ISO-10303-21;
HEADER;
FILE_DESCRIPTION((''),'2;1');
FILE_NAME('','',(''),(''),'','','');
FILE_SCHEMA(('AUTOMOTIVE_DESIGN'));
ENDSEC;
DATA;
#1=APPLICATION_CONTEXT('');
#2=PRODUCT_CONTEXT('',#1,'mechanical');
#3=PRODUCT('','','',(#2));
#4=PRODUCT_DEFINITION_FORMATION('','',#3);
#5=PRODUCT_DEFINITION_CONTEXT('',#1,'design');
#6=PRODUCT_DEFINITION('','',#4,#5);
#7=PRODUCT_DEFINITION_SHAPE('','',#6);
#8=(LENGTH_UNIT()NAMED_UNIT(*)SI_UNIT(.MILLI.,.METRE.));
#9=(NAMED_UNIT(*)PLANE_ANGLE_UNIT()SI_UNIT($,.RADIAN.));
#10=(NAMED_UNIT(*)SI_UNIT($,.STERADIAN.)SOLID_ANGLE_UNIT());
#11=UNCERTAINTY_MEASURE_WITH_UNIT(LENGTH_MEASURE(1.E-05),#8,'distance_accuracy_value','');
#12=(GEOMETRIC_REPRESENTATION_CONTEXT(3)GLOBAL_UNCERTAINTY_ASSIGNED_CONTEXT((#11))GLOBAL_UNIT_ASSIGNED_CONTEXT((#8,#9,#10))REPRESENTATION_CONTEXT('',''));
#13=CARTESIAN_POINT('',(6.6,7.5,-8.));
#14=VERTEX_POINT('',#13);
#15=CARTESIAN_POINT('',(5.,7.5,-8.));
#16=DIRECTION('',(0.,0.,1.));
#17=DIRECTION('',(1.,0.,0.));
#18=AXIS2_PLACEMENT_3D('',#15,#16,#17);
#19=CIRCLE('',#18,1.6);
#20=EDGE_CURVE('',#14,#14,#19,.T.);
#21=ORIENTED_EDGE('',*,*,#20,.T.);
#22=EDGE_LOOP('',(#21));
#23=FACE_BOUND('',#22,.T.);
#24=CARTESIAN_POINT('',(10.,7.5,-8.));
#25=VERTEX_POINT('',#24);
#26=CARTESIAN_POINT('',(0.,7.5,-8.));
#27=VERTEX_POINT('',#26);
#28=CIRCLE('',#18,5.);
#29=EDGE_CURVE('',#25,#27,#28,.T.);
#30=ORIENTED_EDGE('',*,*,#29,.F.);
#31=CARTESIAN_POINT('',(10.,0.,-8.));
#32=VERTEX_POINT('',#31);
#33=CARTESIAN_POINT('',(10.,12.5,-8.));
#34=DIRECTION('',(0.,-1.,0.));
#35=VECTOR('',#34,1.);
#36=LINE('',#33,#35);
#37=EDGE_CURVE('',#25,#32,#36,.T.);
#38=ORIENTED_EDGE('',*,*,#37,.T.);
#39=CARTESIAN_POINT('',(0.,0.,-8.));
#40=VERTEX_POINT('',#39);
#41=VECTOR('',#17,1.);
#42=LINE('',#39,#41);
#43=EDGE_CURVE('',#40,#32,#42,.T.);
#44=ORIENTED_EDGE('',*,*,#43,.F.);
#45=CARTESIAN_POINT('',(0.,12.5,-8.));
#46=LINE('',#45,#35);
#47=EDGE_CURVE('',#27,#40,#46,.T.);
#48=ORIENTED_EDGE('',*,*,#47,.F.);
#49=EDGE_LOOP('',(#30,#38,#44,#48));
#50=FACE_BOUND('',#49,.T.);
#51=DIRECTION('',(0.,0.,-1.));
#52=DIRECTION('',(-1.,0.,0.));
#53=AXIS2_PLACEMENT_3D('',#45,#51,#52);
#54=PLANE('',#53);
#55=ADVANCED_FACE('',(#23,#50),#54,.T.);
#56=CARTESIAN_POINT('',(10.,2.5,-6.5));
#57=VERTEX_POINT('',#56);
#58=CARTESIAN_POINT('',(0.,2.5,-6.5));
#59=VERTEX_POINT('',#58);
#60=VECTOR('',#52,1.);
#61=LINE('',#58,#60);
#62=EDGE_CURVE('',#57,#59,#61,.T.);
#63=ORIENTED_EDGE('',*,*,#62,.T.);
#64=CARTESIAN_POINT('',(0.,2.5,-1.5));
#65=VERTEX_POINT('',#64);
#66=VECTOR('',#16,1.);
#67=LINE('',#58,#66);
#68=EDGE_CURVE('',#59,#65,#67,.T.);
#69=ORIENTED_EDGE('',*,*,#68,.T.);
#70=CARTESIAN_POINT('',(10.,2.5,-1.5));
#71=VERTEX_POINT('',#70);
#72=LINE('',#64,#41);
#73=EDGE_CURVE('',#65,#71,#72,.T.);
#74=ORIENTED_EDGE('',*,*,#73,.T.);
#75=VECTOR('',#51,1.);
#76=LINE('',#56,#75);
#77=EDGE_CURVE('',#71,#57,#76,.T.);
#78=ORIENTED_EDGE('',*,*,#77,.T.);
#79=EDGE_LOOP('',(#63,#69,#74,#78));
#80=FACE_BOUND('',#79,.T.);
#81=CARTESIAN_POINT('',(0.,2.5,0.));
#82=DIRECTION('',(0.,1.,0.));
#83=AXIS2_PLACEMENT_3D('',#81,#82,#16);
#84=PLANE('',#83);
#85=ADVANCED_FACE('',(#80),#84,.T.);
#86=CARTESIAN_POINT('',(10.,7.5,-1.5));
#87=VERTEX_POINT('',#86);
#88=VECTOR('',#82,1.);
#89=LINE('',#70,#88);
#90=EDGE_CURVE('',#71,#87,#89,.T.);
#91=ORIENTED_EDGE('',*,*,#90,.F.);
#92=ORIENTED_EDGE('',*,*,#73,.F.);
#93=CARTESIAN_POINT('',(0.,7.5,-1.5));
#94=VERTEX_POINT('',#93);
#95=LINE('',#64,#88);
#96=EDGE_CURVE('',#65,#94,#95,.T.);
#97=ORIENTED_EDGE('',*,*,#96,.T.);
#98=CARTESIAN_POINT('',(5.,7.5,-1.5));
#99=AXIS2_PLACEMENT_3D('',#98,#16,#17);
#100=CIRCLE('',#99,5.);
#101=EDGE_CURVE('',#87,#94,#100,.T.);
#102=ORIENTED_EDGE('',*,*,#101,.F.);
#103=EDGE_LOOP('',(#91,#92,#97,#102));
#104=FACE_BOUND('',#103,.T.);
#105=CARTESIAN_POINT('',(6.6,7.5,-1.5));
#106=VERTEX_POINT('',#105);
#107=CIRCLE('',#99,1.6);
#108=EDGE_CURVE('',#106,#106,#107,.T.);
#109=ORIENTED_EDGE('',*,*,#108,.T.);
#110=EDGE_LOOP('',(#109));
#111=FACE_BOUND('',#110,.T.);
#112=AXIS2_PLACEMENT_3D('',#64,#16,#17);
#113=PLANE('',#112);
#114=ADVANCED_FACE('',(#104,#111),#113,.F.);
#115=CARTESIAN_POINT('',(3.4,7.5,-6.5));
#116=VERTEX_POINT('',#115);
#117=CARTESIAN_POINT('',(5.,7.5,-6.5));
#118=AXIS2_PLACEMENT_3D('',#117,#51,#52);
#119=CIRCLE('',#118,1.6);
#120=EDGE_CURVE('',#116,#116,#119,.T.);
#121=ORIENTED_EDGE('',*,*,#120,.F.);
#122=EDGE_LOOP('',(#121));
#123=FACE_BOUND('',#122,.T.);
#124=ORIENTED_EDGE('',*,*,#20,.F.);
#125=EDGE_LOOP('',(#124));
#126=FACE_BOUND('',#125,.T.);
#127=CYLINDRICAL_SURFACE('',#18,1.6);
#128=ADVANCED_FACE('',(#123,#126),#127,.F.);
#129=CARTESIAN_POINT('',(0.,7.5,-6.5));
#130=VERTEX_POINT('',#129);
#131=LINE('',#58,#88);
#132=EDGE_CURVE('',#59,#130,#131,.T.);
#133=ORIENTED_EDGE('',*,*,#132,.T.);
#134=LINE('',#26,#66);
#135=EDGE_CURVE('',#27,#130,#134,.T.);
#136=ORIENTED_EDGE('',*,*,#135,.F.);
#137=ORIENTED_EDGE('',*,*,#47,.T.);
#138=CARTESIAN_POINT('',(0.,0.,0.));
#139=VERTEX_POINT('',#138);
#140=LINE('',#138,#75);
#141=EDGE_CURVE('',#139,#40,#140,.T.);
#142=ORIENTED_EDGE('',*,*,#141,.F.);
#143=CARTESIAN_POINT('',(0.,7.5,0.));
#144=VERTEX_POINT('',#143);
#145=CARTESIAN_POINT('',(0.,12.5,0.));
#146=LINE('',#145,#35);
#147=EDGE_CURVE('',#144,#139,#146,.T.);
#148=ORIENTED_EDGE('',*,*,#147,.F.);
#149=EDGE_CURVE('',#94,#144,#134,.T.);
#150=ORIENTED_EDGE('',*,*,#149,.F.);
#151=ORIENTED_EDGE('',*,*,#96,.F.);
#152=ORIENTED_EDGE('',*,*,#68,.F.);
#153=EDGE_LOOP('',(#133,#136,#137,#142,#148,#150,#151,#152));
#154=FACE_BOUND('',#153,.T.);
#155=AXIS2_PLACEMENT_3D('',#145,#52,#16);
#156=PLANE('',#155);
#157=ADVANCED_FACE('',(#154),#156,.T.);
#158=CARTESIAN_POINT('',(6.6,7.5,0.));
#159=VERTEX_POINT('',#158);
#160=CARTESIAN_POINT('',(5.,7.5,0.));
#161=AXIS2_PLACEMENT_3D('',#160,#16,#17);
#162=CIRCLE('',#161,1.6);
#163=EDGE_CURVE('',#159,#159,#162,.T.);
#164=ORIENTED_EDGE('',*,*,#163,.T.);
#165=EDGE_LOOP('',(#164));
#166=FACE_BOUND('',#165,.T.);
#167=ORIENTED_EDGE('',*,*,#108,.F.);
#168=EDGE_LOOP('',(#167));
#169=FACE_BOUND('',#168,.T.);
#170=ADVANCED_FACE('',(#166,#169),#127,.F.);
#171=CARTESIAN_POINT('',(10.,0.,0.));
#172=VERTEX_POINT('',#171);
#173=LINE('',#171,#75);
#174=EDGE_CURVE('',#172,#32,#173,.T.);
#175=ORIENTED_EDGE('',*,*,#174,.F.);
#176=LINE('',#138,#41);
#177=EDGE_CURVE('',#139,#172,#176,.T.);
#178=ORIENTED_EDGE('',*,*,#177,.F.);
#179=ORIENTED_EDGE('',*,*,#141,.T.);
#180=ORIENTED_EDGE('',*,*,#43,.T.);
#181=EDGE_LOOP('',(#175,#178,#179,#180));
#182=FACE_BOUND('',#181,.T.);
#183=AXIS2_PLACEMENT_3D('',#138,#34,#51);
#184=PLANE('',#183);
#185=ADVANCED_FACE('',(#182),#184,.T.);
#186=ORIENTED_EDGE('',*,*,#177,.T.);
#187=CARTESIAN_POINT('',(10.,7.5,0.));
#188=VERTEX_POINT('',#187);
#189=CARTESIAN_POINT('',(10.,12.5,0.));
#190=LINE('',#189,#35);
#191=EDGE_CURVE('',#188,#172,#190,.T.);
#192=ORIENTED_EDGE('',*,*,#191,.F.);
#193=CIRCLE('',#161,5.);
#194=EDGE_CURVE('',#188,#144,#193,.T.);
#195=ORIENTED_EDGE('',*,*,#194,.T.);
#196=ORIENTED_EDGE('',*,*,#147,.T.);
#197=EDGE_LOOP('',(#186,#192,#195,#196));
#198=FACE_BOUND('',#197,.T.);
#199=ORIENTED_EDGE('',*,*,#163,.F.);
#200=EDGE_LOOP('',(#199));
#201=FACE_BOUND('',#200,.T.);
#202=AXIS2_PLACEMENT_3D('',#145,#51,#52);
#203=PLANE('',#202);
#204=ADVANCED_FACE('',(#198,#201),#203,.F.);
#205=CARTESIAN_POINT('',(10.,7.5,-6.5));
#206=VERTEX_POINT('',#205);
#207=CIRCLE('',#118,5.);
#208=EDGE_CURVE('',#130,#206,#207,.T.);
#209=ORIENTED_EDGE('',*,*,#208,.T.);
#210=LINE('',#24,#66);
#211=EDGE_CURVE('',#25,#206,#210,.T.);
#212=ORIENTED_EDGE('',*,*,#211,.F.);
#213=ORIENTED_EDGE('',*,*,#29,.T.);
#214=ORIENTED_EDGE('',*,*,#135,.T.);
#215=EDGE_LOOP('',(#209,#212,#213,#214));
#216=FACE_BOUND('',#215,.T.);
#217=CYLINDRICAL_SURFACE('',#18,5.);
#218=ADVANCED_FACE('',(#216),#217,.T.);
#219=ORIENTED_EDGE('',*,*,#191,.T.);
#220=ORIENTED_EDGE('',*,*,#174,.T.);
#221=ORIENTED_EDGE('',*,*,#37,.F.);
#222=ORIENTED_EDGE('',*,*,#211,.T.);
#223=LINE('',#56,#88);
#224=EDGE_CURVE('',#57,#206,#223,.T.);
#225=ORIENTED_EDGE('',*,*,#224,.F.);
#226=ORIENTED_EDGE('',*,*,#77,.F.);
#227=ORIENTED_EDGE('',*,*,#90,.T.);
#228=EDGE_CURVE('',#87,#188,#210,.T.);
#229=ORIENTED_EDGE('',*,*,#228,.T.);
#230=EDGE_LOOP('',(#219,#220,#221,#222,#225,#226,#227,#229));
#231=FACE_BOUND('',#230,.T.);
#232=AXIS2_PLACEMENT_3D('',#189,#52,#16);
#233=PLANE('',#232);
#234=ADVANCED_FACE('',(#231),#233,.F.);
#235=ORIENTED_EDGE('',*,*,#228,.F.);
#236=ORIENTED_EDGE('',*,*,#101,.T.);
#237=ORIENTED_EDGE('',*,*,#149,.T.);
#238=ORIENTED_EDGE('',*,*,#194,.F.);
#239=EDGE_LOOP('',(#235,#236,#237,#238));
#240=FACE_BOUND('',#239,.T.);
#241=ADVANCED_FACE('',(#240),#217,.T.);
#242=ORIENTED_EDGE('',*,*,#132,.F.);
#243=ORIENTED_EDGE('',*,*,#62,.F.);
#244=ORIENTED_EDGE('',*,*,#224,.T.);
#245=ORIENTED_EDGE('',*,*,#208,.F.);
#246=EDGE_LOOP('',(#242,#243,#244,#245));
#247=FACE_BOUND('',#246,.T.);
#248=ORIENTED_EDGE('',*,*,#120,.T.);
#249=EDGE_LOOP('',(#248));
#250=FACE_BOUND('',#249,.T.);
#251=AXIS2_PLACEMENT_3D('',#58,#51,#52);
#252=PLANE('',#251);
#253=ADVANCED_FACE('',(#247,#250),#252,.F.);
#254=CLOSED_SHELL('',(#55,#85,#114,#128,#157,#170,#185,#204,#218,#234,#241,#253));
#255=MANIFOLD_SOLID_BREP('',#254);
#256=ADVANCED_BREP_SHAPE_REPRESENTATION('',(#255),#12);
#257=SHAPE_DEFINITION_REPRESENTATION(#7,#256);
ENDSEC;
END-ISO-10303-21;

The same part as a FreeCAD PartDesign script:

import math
import FreeCAD as App
import Part
import Sketcher
Q = App.Units.Quantity


def add_polygon(sketch, points):
    """Adds a closed chain of lines whose ends are joined by coincident constraints."""
    first, n = sketch.GeometryCount, len(points)
    for a, b in zip(points, points[1:] + points[:1]):
        sketch.addGeometry(Part.LineSegment(App.Vector(*a, 0), App.Vector(*b, 0)), False)
    for i in range(n):
        sketch.addConstraint(Sketcher.Constraint("Coincident", first + i, 2, first + (i + 1) % n, 1))

doc = App.newDocument("Part")
params = doc.addObject("Spreadsheet::Sheet", "Params")
for row, (alias, value) in enumerate([
    ("sketch1_width", "10 mm"),
    ("sketch1_height", "8 mm"),
    ("pad1_length", "12.5 mm"),
    ("sketch2_width", "10 mm"),
    ("sketch2_height", "5 mm"),
    ("pocket1_length", "10 mm"),
    ("sketch3_diameter", "3.2 mm"),
    ("sketch4_radius", "5 mm"),
    ("sketch4_height", "7.5 mm"),
    ("sketch4_width", "15.58 mm"),
    ("sketch4_height2", "18.08 mm"),
], start=1):
    params.set(f"A{row}", alias)
    params.set(f"B{row}", "=" + value)
    params.setAlias(f"B{row}", alias)

body = doc.addObject("PartDesign::Body", "Body")

# Sketch on XZ plane
sketch1 = body.newObject("Sketcher::SketchObject", "Sketch")
sketch1.AttachmentSupport = (doc.getObject("XZ_Plane"), [""])
sketch1.MapMode = "FlatFace"
add_polygon(sketch1, [(0, -8), (0, 0), (10, 0), (10, -8)])  # lines 0-3
sketch1.addConstraint([
    Sketcher.Constraint("Vertical", 0),
    Sketcher.Constraint("Horizontal", 1),
    Sketcher.Constraint("Vertical", 2),
    Sketcher.Constraint("Horizontal", 3),
    Sketcher.Constraint("Coincident", 0, 2, -1, 1),
    Sketcher.Constraint("DistanceX", 1, 1, 1, 2, Q("10 mm")),
    Sketcher.Constraint("DistanceY", 0, 1, 0, 2, Q("8 mm")),
])
sketch1.setExpression("Constraints[9]", "Params.sketch1_width")
sketch1.setExpression("Constraints[10]", "Params.sketch1_height")
pad1 = body.newObject("PartDesign::Pad", "Pad")
pad1.Profile = sketch1
pad1.setExpression("Length", "Params.pad1_length")
pad1.Reversed = True

# Sketch on XZ plane
sketch2 = body.newObject("Sketcher::SketchObject", "Sketch001")
sketch2.AttachmentSupport = (doc.getObject("XZ_Plane"), [""])
sketch2.MapMode = "FlatFace"
sketch2.AttachmentOffset = App.Placement(App.Vector(0, 0, -12.5), App.Rotation())
add_polygon(sketch2, [(0, -6.5), (0, -1.5), (10, -1.5), (10, -6.5)])  # lines 0-3
sketch2.addConstraint([
    Sketcher.Constraint("Vertical", 0),
    Sketcher.Constraint("Horizontal", 1),
    Sketcher.Constraint("Vertical", 2),
    Sketcher.Constraint("Horizontal", 3),
    Sketcher.Constraint("PointOnObject", 0, 2, -2),
    Sketcher.Constraint("DistanceX", 1, 1, 1, 2, Q("10 mm")),
    Sketcher.Constraint("DistanceY", 0, 1, 0, 2, Q("5 mm")),
    Sketcher.Constraint("DistanceY", 0, 2, -1, 1, Q("1.5 mm")),
])
sketch2.setExpression("Constraints[9]", "Params.sketch2_width")
sketch2.setExpression("Constraints[10]", "Params.sketch2_height")
pocket1 = body.newObject("PartDesign::Pocket", "Pocket")
pocket1.Profile = sketch2
pocket1.setExpression("Length", "Params.pocket1_length")
pocket1.Reversed = True

# Sketch on XY plane
sketch3 = body.newObject("Sketcher::SketchObject", "Sketch002")
sketch3.AttachmentSupport = (doc.getObject("XY_Plane"), [""])
sketch3.MapMode = "FlatFace"
sketch3.addGeometry(Part.Circle(App.Vector(5, 7.5, 0), App.Vector(0, 0, 1), 1.6), False)
sketch3.addConstraint([
    Sketcher.Constraint("Diameter", 0, Q("3.2 mm")),
    Sketcher.Constraint("DistanceX", -1, 1, 0, 3, Q("5 mm")),
    Sketcher.Constraint("DistanceY", -1, 1, 0, 3, Q("7.5 mm")),
])
sketch3.setExpression("Constraints[0]", "Params.sketch3_diameter")
pocket2 = body.newObject("PartDesign::Pocket", "Pocket001")
pocket2.Profile = sketch3
pocket2.Type = "ThroughAll"

# Sketch on XY plane
sketch4 = body.newObject("Sketcher::SketchObject", "Sketch003")
sketch4.AttachmentSupport = (doc.getObject("XY_Plane"), [""])
sketch4.MapMode = "FlatFace"
add_polygon(sketch4, [(-2.79, 15.29), (-2.79, -2.79), (12.79, -2.79), (12.79, 15.29)])  # lines 0-3
sketch4.addGeometry(Part.LineSegment(App.Vector(0, 0, 0), App.Vector(0, 7.5, 0)), False)  # 4
sketch4.addGeometry(Part.ArcOfCircle(Part.Circle(App.Vector(5, 7.5, 0), App.Vector(0, 0, 1), 5), math.radians(0), math.radians(180)), False)  # 5
sketch4.addGeometry(Part.LineSegment(App.Vector(10, 7.5, 0), App.Vector(10, 0, 0)), False)  # 6
sketch4.addGeometry(Part.LineSegment(App.Vector(10, 0, 0), App.Vector(0, 0, 0)), False)  # 7
sketch4.addConstraint([
    Sketcher.Constraint("Tangent", 4, 2, 5, 2),
    Sketcher.Constraint("Tangent", 5, 1, 6, 1),
    Sketcher.Constraint("Coincident", 6, 2, 7, 1),
    Sketcher.Constraint("Coincident", 7, 2, 4, 1),
    Sketcher.Constraint("Vertical", 0),
    Sketcher.Constraint("Horizontal", 1),
    Sketcher.Constraint("Vertical", 2),
    Sketcher.Constraint("Horizontal", 3),
    Sketcher.Constraint("Vertical", 4),
    Sketcher.Constraint("Vertical", 6),
    Sketcher.Constraint("Horizontal", 7),
    Sketcher.Constraint("Coincident", 7, 2, -1, 1),
    Sketcher.Constraint("Radius", 5, Q("5 mm")),
    Sketcher.Constraint("DistanceY", 4, 1, 4, 2, Q("7.5 mm")),
    Sketcher.Constraint("DistanceX", 1, 1, 1, 2, Q("15.58 mm")),
    Sketcher.Constraint("DistanceY", 0, 2, 0, 1, Q("18.08 mm")),
    Sketcher.Constraint("DistanceX", 0, 2, -1, 1, Q("2.79 mm")),
    Sketcher.Constraint("DistanceY", 0, 2, -1, 1, Q("2.79 mm")),
])
sketch4.setExpression("Constraints[16]", "Params.sketch4_radius")
sketch4.setExpression("Constraints[17]", "Params.sketch4_height")
sketch4.setExpression("Constraints[18]", "Params.sketch4_width")
sketch4.setExpression("Constraints[19]", "Params.sketch4_height2")
pocket3 = body.newObject("PartDesign::Pocket", "Pocket002")
pocket3.Profile = sketch4
pocket3.Type = "ThroughAll"

doc.recompute()
